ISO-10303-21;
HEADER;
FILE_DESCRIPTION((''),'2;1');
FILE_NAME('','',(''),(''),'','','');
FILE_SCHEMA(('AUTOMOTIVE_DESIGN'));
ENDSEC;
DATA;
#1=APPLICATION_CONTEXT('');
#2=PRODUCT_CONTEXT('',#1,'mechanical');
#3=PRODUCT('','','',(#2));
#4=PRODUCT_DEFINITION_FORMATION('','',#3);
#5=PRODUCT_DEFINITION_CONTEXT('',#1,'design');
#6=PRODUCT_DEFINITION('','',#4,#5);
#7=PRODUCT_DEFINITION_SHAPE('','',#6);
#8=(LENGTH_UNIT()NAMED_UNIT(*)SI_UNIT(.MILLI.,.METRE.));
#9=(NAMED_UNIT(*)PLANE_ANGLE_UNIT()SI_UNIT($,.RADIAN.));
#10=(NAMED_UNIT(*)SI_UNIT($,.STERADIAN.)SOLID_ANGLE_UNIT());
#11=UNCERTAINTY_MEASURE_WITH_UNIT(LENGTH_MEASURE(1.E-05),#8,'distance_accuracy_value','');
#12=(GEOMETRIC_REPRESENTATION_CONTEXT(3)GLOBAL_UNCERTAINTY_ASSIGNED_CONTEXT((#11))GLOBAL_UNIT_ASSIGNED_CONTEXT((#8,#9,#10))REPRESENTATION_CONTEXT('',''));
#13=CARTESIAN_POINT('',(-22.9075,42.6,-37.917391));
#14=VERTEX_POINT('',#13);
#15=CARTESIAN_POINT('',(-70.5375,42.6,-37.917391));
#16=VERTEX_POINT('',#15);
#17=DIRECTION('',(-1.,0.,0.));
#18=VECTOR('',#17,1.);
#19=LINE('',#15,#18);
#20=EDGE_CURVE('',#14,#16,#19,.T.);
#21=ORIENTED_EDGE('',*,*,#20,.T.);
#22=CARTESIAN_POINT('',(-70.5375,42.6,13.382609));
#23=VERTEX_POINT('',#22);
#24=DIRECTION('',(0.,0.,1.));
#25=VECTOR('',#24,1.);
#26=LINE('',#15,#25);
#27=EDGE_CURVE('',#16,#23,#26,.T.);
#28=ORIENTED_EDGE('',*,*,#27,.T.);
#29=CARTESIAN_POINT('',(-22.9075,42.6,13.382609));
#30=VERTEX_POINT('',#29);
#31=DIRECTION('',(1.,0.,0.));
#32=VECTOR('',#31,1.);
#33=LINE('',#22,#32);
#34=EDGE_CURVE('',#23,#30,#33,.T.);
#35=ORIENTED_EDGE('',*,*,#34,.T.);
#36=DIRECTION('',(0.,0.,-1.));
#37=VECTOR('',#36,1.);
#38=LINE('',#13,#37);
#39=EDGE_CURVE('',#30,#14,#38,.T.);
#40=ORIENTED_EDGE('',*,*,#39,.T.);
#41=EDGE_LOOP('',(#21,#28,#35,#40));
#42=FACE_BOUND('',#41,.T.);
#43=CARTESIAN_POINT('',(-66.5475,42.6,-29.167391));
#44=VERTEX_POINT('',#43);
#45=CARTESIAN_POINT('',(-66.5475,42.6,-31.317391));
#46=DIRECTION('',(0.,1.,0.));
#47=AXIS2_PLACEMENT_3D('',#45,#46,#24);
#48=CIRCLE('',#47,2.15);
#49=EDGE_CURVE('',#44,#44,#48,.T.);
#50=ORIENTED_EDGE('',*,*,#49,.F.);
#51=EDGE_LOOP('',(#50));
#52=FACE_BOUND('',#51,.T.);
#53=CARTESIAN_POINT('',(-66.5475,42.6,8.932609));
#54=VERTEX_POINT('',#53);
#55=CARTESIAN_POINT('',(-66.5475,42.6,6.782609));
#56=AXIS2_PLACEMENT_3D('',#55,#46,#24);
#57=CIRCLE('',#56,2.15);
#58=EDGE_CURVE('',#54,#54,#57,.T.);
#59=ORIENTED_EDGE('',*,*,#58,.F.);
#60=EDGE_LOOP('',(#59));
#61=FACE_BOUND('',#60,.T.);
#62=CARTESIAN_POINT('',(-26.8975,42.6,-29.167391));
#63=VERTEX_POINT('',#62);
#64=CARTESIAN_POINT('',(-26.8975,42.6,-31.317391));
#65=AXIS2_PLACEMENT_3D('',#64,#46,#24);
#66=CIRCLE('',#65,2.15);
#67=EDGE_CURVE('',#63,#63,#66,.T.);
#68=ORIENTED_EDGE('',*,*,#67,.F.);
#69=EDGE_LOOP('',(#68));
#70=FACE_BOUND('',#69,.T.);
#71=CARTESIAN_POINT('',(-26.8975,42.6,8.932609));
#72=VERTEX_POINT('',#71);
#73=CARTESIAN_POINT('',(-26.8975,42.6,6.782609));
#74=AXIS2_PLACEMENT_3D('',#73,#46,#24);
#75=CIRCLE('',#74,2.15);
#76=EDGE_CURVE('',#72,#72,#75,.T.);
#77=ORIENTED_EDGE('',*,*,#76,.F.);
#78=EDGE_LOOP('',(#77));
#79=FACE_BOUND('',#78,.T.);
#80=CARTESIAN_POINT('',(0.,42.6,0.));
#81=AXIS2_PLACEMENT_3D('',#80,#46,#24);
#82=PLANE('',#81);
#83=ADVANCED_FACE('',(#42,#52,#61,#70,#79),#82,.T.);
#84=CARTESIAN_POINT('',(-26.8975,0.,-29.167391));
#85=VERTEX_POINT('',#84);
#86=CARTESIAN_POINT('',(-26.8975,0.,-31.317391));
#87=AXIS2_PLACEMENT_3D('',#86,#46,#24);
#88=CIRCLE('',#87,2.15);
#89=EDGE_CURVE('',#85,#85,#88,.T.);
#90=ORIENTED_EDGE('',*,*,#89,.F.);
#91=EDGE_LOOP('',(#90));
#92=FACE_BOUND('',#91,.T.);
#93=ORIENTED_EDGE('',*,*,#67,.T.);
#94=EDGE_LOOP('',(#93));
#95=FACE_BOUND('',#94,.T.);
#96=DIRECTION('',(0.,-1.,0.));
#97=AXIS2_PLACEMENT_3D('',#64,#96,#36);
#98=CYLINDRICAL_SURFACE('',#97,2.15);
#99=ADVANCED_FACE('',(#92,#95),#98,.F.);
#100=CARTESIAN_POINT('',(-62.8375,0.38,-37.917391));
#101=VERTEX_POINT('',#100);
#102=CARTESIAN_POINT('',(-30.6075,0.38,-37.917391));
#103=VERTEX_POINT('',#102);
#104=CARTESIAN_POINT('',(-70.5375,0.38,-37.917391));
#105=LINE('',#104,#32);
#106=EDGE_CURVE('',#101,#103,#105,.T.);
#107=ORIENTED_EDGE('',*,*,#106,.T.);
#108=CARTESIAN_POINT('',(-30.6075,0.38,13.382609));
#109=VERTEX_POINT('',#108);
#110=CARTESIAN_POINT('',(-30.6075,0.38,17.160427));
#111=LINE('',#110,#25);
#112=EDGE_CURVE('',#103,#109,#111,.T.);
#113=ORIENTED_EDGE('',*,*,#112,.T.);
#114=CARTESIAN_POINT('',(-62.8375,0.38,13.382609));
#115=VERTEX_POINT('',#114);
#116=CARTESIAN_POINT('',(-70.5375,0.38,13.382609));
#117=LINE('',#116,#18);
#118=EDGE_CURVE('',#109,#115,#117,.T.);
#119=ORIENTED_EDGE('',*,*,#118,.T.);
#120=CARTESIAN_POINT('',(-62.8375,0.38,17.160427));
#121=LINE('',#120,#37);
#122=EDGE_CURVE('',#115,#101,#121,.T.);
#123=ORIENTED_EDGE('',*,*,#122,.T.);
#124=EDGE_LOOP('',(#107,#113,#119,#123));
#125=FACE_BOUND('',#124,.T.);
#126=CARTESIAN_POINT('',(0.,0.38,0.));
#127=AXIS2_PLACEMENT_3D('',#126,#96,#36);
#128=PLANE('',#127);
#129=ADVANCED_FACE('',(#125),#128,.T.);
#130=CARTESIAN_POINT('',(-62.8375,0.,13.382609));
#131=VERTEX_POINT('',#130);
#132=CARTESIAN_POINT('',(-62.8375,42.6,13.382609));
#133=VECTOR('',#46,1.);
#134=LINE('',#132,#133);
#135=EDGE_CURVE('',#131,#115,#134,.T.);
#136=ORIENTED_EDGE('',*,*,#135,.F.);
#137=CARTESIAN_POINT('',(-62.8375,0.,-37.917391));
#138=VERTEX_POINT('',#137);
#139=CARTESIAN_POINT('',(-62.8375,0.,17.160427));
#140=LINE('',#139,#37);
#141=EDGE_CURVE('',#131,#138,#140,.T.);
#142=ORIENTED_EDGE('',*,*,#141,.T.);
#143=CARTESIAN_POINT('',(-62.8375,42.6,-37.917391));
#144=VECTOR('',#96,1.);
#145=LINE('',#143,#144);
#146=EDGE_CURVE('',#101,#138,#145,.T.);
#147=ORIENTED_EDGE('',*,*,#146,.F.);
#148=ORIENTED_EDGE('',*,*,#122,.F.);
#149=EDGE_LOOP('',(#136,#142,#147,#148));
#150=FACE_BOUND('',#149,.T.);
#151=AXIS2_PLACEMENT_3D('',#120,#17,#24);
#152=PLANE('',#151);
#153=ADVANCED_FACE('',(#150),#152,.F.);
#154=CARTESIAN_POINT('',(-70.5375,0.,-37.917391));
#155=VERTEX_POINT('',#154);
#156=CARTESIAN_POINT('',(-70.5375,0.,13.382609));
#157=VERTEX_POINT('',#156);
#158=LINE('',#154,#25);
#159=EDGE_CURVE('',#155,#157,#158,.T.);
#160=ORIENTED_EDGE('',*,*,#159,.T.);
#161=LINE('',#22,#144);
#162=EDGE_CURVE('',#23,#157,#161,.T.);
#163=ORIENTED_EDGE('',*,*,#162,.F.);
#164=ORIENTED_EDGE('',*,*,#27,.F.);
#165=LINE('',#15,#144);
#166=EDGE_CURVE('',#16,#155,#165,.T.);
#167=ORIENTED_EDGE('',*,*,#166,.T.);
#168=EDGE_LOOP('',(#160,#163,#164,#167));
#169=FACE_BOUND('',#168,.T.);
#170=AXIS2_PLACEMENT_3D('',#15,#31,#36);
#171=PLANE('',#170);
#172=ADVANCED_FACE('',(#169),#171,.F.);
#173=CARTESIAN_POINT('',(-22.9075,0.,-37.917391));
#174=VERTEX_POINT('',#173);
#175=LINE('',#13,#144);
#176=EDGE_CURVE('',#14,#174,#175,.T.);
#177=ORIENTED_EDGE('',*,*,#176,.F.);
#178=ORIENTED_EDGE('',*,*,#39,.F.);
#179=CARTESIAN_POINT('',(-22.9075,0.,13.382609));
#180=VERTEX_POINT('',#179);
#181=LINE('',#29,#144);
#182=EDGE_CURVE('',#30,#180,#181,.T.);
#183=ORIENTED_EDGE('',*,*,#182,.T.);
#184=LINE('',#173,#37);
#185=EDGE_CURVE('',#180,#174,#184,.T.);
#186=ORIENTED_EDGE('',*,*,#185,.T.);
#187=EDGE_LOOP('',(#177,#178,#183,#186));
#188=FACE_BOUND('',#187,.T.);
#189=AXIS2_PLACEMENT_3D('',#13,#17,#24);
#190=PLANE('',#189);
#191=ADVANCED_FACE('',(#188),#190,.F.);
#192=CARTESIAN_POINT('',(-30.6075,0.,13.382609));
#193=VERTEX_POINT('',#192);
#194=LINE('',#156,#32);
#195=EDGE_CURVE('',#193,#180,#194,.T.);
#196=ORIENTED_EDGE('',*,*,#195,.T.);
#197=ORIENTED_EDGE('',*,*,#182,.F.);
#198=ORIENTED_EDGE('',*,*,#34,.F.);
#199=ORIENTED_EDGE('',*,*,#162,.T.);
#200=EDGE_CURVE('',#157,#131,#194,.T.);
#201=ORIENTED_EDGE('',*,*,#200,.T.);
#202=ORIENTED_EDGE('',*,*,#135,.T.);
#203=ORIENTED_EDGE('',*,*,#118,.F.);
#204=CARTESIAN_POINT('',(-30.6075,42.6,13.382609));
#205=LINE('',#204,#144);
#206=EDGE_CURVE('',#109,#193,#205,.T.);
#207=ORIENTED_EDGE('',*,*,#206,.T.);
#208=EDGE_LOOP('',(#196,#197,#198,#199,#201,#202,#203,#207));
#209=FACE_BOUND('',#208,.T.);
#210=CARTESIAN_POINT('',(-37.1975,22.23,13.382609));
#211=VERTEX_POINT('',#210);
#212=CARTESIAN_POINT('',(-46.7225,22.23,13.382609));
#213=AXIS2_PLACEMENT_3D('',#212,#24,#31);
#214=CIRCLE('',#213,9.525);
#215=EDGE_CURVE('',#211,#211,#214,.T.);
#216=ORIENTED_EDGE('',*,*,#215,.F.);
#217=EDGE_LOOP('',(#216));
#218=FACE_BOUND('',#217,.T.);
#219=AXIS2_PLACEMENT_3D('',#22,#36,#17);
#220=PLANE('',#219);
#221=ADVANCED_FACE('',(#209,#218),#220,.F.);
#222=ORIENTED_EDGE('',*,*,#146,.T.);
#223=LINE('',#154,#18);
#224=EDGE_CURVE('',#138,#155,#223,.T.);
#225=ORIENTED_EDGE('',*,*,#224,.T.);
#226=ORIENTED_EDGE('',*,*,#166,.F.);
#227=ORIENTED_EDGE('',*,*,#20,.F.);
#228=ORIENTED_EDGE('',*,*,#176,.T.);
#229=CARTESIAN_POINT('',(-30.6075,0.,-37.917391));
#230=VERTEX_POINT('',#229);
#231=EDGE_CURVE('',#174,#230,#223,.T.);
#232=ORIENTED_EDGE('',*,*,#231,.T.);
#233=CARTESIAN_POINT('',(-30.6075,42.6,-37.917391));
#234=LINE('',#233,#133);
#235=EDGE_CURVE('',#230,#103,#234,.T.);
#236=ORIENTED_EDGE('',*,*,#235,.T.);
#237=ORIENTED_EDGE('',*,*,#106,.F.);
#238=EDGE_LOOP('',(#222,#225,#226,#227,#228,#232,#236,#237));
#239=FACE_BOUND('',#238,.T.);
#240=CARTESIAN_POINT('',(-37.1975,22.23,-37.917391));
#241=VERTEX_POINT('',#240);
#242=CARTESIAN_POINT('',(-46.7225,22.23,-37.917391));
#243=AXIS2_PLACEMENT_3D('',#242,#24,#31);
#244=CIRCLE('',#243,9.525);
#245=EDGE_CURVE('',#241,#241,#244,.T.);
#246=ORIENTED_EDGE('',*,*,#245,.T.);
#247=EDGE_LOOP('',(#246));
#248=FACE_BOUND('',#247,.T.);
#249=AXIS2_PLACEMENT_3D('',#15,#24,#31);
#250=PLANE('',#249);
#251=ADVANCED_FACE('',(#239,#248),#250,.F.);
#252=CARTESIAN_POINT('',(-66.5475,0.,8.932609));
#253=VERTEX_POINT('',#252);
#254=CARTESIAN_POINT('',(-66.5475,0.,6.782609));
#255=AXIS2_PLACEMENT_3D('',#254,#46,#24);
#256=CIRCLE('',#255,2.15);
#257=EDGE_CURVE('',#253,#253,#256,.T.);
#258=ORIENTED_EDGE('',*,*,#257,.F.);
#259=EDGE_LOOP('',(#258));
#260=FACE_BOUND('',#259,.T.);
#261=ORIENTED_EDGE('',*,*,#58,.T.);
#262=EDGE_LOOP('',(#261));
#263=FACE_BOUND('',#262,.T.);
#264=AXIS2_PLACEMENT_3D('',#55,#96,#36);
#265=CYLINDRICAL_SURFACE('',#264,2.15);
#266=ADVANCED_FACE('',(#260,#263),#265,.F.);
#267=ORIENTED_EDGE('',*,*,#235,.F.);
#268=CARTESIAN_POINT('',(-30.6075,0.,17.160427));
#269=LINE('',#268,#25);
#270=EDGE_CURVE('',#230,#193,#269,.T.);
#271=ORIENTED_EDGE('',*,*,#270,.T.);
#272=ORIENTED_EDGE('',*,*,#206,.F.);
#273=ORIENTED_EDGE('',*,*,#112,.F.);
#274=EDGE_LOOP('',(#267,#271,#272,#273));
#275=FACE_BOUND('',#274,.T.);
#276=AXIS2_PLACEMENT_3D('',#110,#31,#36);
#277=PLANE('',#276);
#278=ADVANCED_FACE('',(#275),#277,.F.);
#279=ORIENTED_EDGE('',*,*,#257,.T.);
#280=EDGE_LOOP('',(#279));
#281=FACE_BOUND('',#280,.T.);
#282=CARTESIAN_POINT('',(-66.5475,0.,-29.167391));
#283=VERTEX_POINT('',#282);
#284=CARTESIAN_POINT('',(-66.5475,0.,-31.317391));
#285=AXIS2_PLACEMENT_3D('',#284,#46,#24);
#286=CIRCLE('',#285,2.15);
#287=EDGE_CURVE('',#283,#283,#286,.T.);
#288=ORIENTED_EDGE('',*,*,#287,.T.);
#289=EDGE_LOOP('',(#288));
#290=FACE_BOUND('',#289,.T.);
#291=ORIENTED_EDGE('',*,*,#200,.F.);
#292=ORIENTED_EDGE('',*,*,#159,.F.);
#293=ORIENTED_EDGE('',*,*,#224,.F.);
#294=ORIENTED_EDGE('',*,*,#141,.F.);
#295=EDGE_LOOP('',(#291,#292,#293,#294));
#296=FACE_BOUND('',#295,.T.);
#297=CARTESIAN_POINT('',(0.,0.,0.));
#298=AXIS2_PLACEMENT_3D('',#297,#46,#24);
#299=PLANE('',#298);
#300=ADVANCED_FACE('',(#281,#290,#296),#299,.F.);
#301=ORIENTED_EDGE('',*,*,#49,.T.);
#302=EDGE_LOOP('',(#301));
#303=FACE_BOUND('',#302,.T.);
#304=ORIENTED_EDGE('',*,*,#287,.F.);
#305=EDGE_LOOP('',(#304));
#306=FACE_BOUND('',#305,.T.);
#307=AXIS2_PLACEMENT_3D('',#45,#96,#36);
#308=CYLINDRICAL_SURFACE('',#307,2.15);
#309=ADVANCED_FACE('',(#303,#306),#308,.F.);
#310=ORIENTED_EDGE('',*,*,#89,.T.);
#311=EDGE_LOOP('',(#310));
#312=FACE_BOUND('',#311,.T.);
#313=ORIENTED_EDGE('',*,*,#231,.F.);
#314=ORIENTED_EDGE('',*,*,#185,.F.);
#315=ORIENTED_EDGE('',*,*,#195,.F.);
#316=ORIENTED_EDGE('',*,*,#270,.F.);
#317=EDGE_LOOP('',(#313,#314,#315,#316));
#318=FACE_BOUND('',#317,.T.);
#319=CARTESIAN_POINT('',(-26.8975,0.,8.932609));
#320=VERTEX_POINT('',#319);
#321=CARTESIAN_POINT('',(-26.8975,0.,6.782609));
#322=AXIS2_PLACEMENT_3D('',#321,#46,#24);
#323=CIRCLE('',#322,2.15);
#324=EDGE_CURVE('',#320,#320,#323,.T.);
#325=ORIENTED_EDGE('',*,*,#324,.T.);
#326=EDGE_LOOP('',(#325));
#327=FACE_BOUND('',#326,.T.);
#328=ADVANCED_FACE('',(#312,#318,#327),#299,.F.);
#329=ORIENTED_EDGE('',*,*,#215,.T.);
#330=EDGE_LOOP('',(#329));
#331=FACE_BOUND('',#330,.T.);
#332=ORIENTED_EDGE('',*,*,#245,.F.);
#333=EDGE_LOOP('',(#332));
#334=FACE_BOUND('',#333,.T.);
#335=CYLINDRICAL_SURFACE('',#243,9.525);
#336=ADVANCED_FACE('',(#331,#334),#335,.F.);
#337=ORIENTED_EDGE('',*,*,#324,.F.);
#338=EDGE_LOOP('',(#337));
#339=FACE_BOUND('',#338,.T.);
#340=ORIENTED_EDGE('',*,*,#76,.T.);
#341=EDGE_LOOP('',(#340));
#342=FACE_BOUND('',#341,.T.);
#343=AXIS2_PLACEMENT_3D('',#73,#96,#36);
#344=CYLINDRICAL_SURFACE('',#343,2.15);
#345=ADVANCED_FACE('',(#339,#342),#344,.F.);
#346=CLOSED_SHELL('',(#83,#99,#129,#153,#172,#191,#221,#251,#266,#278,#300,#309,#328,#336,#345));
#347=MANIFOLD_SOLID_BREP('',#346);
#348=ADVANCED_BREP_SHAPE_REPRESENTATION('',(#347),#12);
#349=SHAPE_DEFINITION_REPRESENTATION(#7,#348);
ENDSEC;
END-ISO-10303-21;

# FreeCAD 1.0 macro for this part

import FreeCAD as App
import Part
import Sketcher
Q = App.Units.Quantity


def add_polygon(sketch, points):
    """Adds a closed chain of lines whose ends are joined by coincident constraints."""
    first, n = sketch.GeometryCount, len(points)
    for a, b in zip(points, points[1:] + points[:1]):
        sketch.addGeometry(Part.LineSegment(App.Vector(*a, 0), App.Vector(*b, 0)), False)
    for i in range(n):
        sketch.addConstraint(Sketcher.Constraint("Coincident", first + i, 2, first + (i + 1) % n, 1))

doc = App.newDocument("Part")
body = doc.addObject("PartDesign::Body", "Body")

# Sketch on XZ plane
sketch1 = body.newObject("Sketcher::SketchObject", "Sketch")
sketch1.AttachmentSupport = (doc.getObject("XZ_Plane"), [""])
sketch1.MapMode = "FlatFace"
add_polygon(sketch1, [(-70.5, -37.9), (-70.5, 13.4), (-22.9, 13.4), (-22.9, -37.9)])  # lines 0-3
sketch1.addGeometry(Part.Circle(App.Vector(-66.5, 6.8, 0), App.Vector(0, 0, 1), 2.1), False)  # 4
sketch1.addGeometry(Part.Circle(App.Vector(-26.9, 6.8, 0), App.Vector(0, 0, 1), 2.1), False)  # 5
sketch1.addGeometry(Part.Circle(App.Vector(-66.5, -31.3, 0), App.Vector(0, 0, 1), 2.1), False)  # 6
sketch1.addGeometry(Part.Circle(App.Vector(-26.9, -31.3, 0), App.Vector(0, 0, 1), 2.1), False)  # 7
sketch1.addConstraint([
    Sketcher.Constraint("Vertical", 0),
    Sketcher.Constraint("Horizontal", 1),
    Sketcher.Constraint("Vertical", 2),
    Sketcher.Constraint("Horizontal", 3),
    Sketcher.Constraint("Equal", 4, 5),
    Sketcher.Constraint("Equal", 5, 6),
    Sketcher.Constraint("Equal", 6, 7),
    Sketcher.Constraint("Horizontal", 4, 3, 5, 3),
    Sketcher.Constraint("Horizontal", 6, 3, 7, 3),
    Sketcher.Constraint("Vertical", 4, 3, 6, 3),
    Sketcher.Constraint("Vertical", 5, 3, 7, 3),
    Sketcher.Constraint("Diameter", 4, Q("4.3 mm")),
    Sketcher.Constraint("DistanceY", 0, 1, 0, 2, Q("51.3 mm")),
    Sketcher.Constraint("DistanceX", 1, 1, 1, 2, Q("47.63 mm")),
    Sketcher.Constraint("DistanceY", 6, 3, 4, 3, Q("38.1 mm")),
    Sketcher.Constraint("DistanceY", 4, 3, 0, 2, Q("6.6 mm")),
    Sketcher.Constraint("DistanceX", 4, 3, 5, 3, Q("39.65 mm")),
    Sketcher.Constraint("DistanceX", 0, 2, 4, 3, Q("3.99 mm")),
    Sketcher.Constraint("DistanceX", 4, 3, -1, 1, Q("66.5475 mm")),
    Sketcher.Constraint("DistanceY", -1, 1, 4, 3, Q("6.782609 mm")),
])
pad1 = body.newObject("PartDesign::Pad", "Pad")
pad1.Profile = sketch1
pad1.Length = 42.6
pad1.Reversed = True

# Sketch on XY plane
sketch2 = body.newObject("Sketcher::SketchObject", "Sketch001")
sketch2.AttachmentSupport = (doc.getObject("XY_Plane"), [""])
sketch2.MapMode = "FlatFace"
sketch2.AttachmentOffset = App.Placement(App.Vector(0, 0, 13.382609), App.Rotation())
sketch2.addGeometry(Part.Circle(App.Vector(-47, 22, 0), App.Vector(0, 0, 1), 10), False)
sketch2.addConstraint([
    Sketcher.Constraint("Diameter", 0, Q("19.05 mm")),
    Sketcher.Constraint("DistanceY", -1, 1, 0, 3, Q("22.23 mm")),
    Sketcher.Constraint("DistanceX", 0, 3, -1, 1, Q("46.7225 mm")),
])
pocket1 = body.newObject("PartDesign::Pocket", "Pocket")
pocket1.Profile = sketch2
pocket1.Type = "ThroughAll"

# Sketch on XZ plane
sketch3 = body.newObject("Sketcher::SketchObject", "Sketch002")
sketch3.AttachmentSupport = (doc.getObject("XZ_Plane"), [""])
sketch3.MapMode = "FlatFace"
add_polygon(sketch3, [(-63, 17), (-63, -40), (-31, -40), (-31, 17)])  # lines 0-3
sketch3.addConstraint([
    Sketcher.Constraint("Vertical", 0),
    Sketcher.Constraint("Horizontal", 1),
    Sketcher.Constraint("Vertical", 2),
    Sketcher.Constraint("Horizontal", 3),
    Sketcher.Constraint("DistanceX", 1, 1, 1, 2, Q("32.23 mm")),
    Sketcher.Constraint("DistanceX", 0, 2, -1, 1, Q("62.8375 mm")),
    Sketcher.Constraint("DistanceY", 0, 2, 0, 1, Q("57.048666 mm")),
    Sketcher.Constraint("DistanceY", 0, 2, -1, 1, Q("39.888238 mm")),
])
pocket2 = body.newObject("PartDesign::Pocket", "Pocket001")
pocket2.Profile = sketch3
pocket2.Length = 0.38

doc.recompute()
